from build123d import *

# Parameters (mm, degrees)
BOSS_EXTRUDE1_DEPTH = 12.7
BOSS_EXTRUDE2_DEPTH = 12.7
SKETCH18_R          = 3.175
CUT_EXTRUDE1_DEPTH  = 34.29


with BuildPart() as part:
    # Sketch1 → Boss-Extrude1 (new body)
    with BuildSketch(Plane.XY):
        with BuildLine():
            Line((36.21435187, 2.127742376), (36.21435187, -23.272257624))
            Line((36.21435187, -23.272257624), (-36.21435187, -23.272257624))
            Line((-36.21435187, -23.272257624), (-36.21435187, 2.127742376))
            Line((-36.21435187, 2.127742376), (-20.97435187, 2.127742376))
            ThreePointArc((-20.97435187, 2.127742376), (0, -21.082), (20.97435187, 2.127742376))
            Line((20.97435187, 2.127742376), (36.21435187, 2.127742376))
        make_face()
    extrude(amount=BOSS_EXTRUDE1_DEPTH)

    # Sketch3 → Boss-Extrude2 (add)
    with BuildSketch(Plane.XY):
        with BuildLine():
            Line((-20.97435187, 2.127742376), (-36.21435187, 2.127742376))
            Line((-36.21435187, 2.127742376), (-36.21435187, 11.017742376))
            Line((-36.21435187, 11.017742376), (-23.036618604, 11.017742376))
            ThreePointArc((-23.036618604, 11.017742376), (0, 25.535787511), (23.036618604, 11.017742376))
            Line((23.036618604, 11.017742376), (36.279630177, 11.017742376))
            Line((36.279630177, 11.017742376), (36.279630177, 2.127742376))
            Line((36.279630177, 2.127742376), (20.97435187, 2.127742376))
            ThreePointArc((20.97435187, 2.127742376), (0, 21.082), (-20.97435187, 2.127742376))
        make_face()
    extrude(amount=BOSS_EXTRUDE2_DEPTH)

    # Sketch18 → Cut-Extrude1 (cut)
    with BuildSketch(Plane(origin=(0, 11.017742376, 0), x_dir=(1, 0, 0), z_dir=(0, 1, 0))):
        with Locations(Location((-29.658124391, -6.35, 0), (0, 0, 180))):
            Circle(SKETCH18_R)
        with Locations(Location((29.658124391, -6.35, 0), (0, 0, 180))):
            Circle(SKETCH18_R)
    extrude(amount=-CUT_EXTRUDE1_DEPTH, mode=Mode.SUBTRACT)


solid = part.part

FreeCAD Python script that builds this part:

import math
import FreeCAD as App
import Part
import Sketcher

V = App.Vector
Q = App.Units.Quantity

doc = App.newDocument("Part")
params = doc.addObject("Spreadsheet::Sheet", "Params")
for row, (alias, value) in enumerate([
    ("sketch1_height", "1 in"),
    ("sketch1_radius", "0.83 in"),
    ("sketch1_width", "0.6 in"),
    ("pad1_length", "0.5 in"),
    ("sketch2_radius", "0.83 in"),
    ("sketch2_width", "0.6 in"),
    ("sketch2_height", "0.35 in"),
    ("pad2_length", "0.5 in"),
    ("sketch3_diameter", "0.25 in"),
    ("pocket1_length", "1.35 in"),
], start=1):
    params.set(f"A{row}", alias)
    params.set(f"B{row}", "=" + value)
    params.setAlias(f"B{row}", alias)

body = doc.addObject("PartDesign::Body", "Body")

sketch1 = doc.addObject("Sketcher::SketchObject", "Sketch")
body.addObject(sketch1)
sketch1.AttachmentSupport = (doc.XY_Plane, [""])
sketch1.MapMode = "FlatFace"
sketch1.addGeometry([
    Part.LineSegment(V(36, -23, 0), V(36, 2, 0)),
    Part.LineSegment(V(36, 2, 0), V(21, 2, 0)),
    Part.ArcOfCircle(Part.Circle(V(0, 0, 0), V(0, 0, 1), 21), math.radians(174), math.radians(366)),
    Part.LineSegment(V(-21, 2, 0), V(-36, 2, 0)),
    Part.LineSegment(V(-36, 2, 0), V(-36, -23, 0)),
    Part.LineSegment(V(-36, -23, 0), V(36, -23, 0)),
], False)
sketch1.addConstraint([
    Sketcher.Constraint("Coincident", 0, 2, 1, 1),
    Sketcher.Constraint("Coincident", 1, 2, 2, 2),
    Sketcher.Constraint("Coincident", 2, 1, 3, 1),
    Sketcher.Constraint("Coincident", 3, 2, 4, 1),
    Sketcher.Constraint("Coincident", 4, 2, 5, 1),
    Sketcher.Constraint("Coincident", 5, 2, 0, 1),
    Sketcher.Constraint("Vertical", 0),
    Sketcher.Constraint("Horizontal", 1),
    Sketcher.Constraint("Horizontal", 3),
    Sketcher.Constraint("Vertical", 4),
    Sketcher.Constraint("Horizontal", 5),
    Sketcher.Constraint("Coincident", 2, 3, -1, 1),
    Sketcher.Constraint("Symmetric", 0, 2, 3, 2, -2),
    Sketcher.Constraint("DistanceY", 0, 1, 0, 2, Q("1 in")),
    Sketcher.Constraint("Radius", 2, Q("0.83 in")),
    Sketcher.Constraint("DistanceX", 1, 2, 1, 1, Q("0.6 in")),
    Sketcher.Constraint("DistanceX", 5, 1, 5, 2, 72.428704),
])
sketch1.setExpression("Constraints[13]", "Params.sketch1_height")
sketch1.setExpression("Constraints[14]", "Params.sketch1_radius")
sketch1.setExpression("Constraints[15]", "Params.sketch1_width")
pad1 = doc.addObject("PartDesign::Pad", "Pad")
body.addObject(pad1)
pad1.Profile = sketch1
pad1.setExpression("Length", "Params.pad1_length")

sketch2 = doc.addObject("Sketcher::SketchObject", "Sketch001")
body.addObject(sketch2)
sketch2.AttachmentSupport = (doc.XY_Plane, [""])
sketch2.MapMode = "FlatFace"
sketch2.addGeometry([
    Part.LineSegment(V(-36, 2, 0), V(-21, 2, 0)),
    Part.ArcOfCircle(Part.Circle(V(0, 0, 0), V(0, 0, 1), 21), math.radians(6), math.radians(174)),
    Part.LineSegment(V(21, 2, 0), V(36, 2, 0)),
    Part.LineSegment(V(36, 2, 0), V(36, 11, 0)),
    Part.LineSegment(V(36, 11, 0), V(23, 11, 0)),
    Part.ArcOfCircle(Part.Circle(V(0, 0, 0), V(0, 0, 1), 26), math.radians(26), math.radians(154)),
    Part.LineSegment(V(-23, 11, 0), V(-36, 11, 0)),
    Part.LineSegment(V(-36, 11, 0), V(-36, 2, 0)),
], False)
sketch2.addConstraint([
    Sketcher.Constraint("Coincident", 0, 2, 1, 2),
    Sketcher.Constraint("Coincident", 1, 1, 2, 1),
    Sketcher.Constraint("Coincident", 2, 2, 3, 1),
    Sketcher.Constraint("Coincident", 3, 2, 4, 1),
    Sketcher.Constraint("Coincident", 4, 2, 5, 1),
    Sketcher.Constraint("Coincident", 5, 2, 6, 1),
    Sketcher.Constraint("Coincident", 6, 2, 7, 1),
    Sketcher.Constraint("Coincident", 7, 2, 0, 1),
    Sketcher.Constraint("Horizontal", 0),
    Sketcher.Constraint("Horizontal", 2),
    Sketcher.Constraint("Vertical", 3),
    Sketcher.Constraint("Horizontal", 4),
    Sketcher.Constraint("Horizontal", 6),
    Sketcher.Constraint("Vertical", 7),
    Sketcher.Constraint("Coincident", 1, 3, -1, 1),
    Sketcher.Constraint("Coincident", 5, 3, -1, 1),
    Sketcher.Constraint("Horizontal", 0, 2, 1, 1),
    Sketcher.Constraint("Horizontal", 4, 2, 5, 2),
    Sketcher.Constraint("Radius", 1, Q("0.83 in")),
    Sketcher.Constraint("DistanceX", 0, 1, 0, 2, Q("0.6 in")),
    Sketcher.Constraint("DistanceY", 3, 1, 3, 2, Q("0.35 in")),
    Sketcher.Constraint("Radius", 5, 25.535788),
    Sketcher.Constraint("DistanceX", 2, 1, 2, 2, 15.305278),
    Sketcher.Constraint("DistanceX", 4, 2, 4, 1, 13.243012),
])
sketch2.setExpression("Constraints[18]", "Params.sketch2_radius")
sketch2.setExpression("Constraints[19]", "Params.sketch2_width")
sketch2.setExpression("Constraints[20]", "Params.sketch2_height")
pad2 = doc.addObject("PartDesign::Pad", "Pad001")
body.addObject(pad2)
pad2.Profile = sketch2
pad2.setExpression("Length", "Params.pad2_length")

sketch3 = doc.addObject("Sketcher::SketchObject", "Sketch002")
body.addObject(sketch3)
sketch3.AttachmentSupport = (doc.XZ_Plane, [""])
sketch3.MapMode = "FlatFace"
sketch3.AttachmentOffset = App.Placement(V(0, 0, -11.017742), App.Rotation())
sketch3.addGeometry([
    Part.Circle(V(-29.7, 6.3, 0), V(0, 0, 1), 3.2),
    Part.Circle(V(29.7, 6.3, 0), V(0, 0, 1), 3.2),
], False)
sketch3.addConstraint([
    Sketcher.Constraint("Equal", 0, 1),
    Sketcher.Constraint("Symmetric", 0, 3, 1, 3, -2),
    Sketcher.Constraint("Diameter", 0, Q("0.25 in")),
    Sketcher.Constraint("DistanceY", -1, 1, 0, 3, Q("0.25 in")),
    Sketcher.Constraint("DistanceX", 0, 3, 1, 3, 59.316249),
])
sketch3.setExpression("Constraints[2]", "Params.sketch3_diameter")
pocket1 = doc.addObject("PartDesign::Pocket", "Pocket")
body.addObject(pocket1)
pocket1.Profile = sketch3
pocket1.setExpression("Length", "Params.pocket1_length")
pocket1.Reversed = True

doc.recompute()
